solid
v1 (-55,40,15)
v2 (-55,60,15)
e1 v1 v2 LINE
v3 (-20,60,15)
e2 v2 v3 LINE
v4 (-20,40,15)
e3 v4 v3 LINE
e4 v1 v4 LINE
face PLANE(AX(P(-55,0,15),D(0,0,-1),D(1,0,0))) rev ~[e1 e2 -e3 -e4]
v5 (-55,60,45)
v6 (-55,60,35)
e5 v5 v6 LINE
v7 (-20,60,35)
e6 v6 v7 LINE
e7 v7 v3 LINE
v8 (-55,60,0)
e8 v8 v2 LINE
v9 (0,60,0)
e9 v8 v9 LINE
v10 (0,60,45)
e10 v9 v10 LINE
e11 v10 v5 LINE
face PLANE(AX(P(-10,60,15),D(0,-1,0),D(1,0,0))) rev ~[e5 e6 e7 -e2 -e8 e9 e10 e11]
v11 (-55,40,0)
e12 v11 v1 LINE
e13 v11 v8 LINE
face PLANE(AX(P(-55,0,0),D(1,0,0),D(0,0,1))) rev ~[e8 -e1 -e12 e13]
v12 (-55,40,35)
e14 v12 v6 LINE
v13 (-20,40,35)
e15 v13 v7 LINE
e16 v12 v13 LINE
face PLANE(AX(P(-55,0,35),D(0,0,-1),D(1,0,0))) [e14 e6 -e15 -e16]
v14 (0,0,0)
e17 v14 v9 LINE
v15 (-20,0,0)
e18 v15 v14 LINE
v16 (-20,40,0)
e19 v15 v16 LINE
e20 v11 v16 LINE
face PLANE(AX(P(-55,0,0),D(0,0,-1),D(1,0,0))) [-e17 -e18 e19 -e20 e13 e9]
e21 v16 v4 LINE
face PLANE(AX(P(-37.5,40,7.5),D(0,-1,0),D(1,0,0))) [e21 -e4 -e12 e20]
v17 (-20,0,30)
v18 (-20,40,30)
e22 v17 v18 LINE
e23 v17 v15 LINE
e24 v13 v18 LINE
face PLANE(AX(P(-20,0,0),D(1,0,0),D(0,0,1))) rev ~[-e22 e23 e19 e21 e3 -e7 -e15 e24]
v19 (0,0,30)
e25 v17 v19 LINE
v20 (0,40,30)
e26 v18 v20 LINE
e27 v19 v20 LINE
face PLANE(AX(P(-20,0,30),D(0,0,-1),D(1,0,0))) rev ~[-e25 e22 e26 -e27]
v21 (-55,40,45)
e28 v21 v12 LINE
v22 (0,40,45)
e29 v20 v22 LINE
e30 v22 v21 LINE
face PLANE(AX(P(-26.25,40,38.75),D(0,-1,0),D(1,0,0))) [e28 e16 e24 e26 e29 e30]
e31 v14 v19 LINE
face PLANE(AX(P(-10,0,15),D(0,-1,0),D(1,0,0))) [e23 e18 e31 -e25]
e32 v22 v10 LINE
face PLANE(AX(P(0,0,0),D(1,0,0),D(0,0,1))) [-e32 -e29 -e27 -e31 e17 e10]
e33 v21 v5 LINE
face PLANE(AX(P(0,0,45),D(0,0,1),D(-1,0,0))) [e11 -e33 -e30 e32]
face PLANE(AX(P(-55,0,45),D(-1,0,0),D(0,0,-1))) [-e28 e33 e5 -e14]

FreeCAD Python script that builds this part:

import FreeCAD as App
import Part
import Sketcher
from FreeCAD import Vector
Q = App.Units.Quantity


def add_polygon(sketch, points):
    """Adds a closed chain of lines whose ends are joined by coincident constraints."""
    first, n = sketch.GeometryCount, len(points)
    for a, b in zip(points, points[1:] + points[:1]):
        sketch.addGeometry(Part.LineSegment(App.Vector(*a, 0), App.Vector(*b, 0)), False)
    for i in range(n):
        sketch.addConstraint(Sketcher.Constraint("Coincident", first + i, 2, first + (i + 1) % n, 1))

doc = App.newDocument("Part")
params = doc.addObject("Spreadsheet::Sheet", "Params")
for row, (alias, value) in enumerate([
    ("sketch1_width", "55 mm"),
    ("sketch1_width2", "35 mm"),
    ("sketch1_height", "45 mm"),
    ("sketch1_height2", "10 mm"),
    ("sketch1_height3", "20 mm"),
    ("pad1_length", "60 mm"),
    ("sketch2_width", "20 mm"),
    ("sketch2_width2", "55 mm"),
    ("sketch2_height", "15 mm"),
    ("sketch2_height2", "10 mm"),
    ("pocket1_length", "40 mm"),
    ("sketch3_width", "35 mm"),
    ("sketch3_height", "15 mm"),
    ("pocket2_length", "40 mm"),
], start=1):
    params.set(f"A{row}", alias)
    params.set(f"B{row}", "=" + value)
    params.setAlias(f"B{row}", alias)

body = doc.addObject("PartDesign::Body", "Body")

sketch1 = body.newObject("Sketcher::SketchObject", "Sketch")
sketch1.AttachmentSupport = (doc.getObject("XZ_Plane"), [""])
sketch1.MapMode = "FlatFace"
add_polygon(sketch1, [(0, 0), (0, 45), (-55, 45), (-55, 35), (-20, 35), (-20, 15), (-55, 15), (-55, 0)])
sketch1.addConstraint([
    Sketcher.Constraint("Vertical", 0),
    Sketcher.Constraint("Horizontal", 1),
    Sketcher.Constraint("Vertical", 2),
    Sketcher.Constraint("Horizontal", 3),
    Sketcher.Constraint("Vertical", 4),
    Sketcher.Constraint("Horizontal", 5),
    Sketcher.Constraint("Vertical", 6),
    Sketcher.Constraint("Horizontal", 7),
    Sketcher.Constraint("Coincident", 7, 2, -1, 1),
    Sketcher.Constraint("Vertical", 2, 2, 5, 2),
    Sketcher.Constraint("DistanceX", 1, 2, 1, 1, Q("55 mm")),
    Sketcher.Constraint("DistanceX", 3, 1, 3, 2, Q("35 mm")),
    Sketcher.Constraint("DistanceY", 0, 1, 0, 2, Q("45 mm")),
    Sketcher.Constraint("DistanceY", 2, 2, 2, 1, Q("10 mm")),
    Sketcher.Constraint("DistanceY", 4, 2, 4, 1, Q("20 mm")),
])
sketch1.setExpression("Constraints[18]", "Params.sketch1_width")
sketch1.setExpression("Constraints[19]", "Params.sketch1_width2")
sketch1.setExpression("Constraints[20]", "Params.sketch1_height")
sketch1.setExpression("Constraints[21]", "Params.sketch1_height2")
sketch1.setExpression("Constraints[22]", "Params.sketch1_height3")
pad1 = body.newObject("PartDesign::Pad", "Pad")
pad1.Profile = sketch1
pad1.setExpression("Length", "Params.pad1_length")
pad1.Reversed = True

sketch2 = body.newObject("Sketcher::SketchObject", "Sketch001")
sketch2.AttachmentSupport = (doc.getObject("XZ_Plane"), [""])
sketch2.MapMode = "FlatFace"
add_polygon(sketch2, [(-20, 30), (0, 30), (0, 45), (-55, 45), (-55, 35), (-20, 35)])
sketch2.addConstraint([
    Sketcher.Constraint("Horizontal", 0),
    Sketcher.Constraint("Vertical", 1),
    Sketcher.Constraint("Horizontal", 2),
    Sketcher.Constraint("Vertical", 3),
    Sketcher.Constraint("Horizontal", 4),
    Sketcher.Constraint("Vertical", 5),
    Sketcher.Constraint("PointOnObject", 0, 2, -2),
    Sketcher.Constraint("DistanceX", 0, 1, 0, 2, Q("20 mm")),
    Sketcher.Constraint("DistanceX", 2, 2, 2, 1, Q("55 mm")),
    Sketcher.Constraint("DistanceY", 1, 1, 1, 2, Q("15 mm")),
    Sketcher.Constraint("DistanceY", 3, 2, 3, 1, Q("10 mm")),
    Sketcher.Constraint("DistanceY", -1, 1, 0, 2, Q("30 mm")),
])
sketch2.setExpression("Constraints[13]", "Params.sketch2_width")
sketch2.setExpression("Constraints[14]", "Params.sketch2_width2")
sketch2.setExpression("Constraints[15]", "Params.sketch2_height")
sketch2.setExpression("Constraints[16]", "Params.sketch2_height2")
pocket1 = body.newObject("PartDesign::Pocket", "Pocket")
pocket1.Profile = sketch2
pocket1.setExpression("Length", "Params.pocket1_length")

sketch3 = body.newObject("Sketcher::SketchObject", "Sketch002")
sketch3.AttachmentSupport = (doc.getObject("XZ_Plane"), [""])
sketch3.MapMode = "FlatFace"
add_polygon(sketch3, [(-55, 15), (-55, 0), (-20, 0), (-20, 15)])
sketch3.addConstraint([
    Sketcher.Constraint("Vertical", 0),
    Sketcher.Constraint("Horizontal", 1),
    Sketcher.Constraint("Vertical", 2),
    Sketcher.Constraint("Horizontal", 3),
    Sketcher.Constraint("PointOnObject", 0, 2, -1),
    Sketcher.Constraint("DistanceX", 1, 1, 1, 2, Q("35 mm")),
    Sketcher.Constraint("DistanceY", 0, 2, 0, 1, Q("15 mm")),
    Sketcher.Constraint("DistanceX", 0, 2, -1, 1, Q("55 mm")),
])
sketch3.setExpression("Constraints[9]", "Params.sketch3_width")
sketch3.setExpression("Constraints[10]", "Params.sketch3_height")
pocket2 = body.newObject("PartDesign::Pocket", "Pocket001")
pocket2.Profile = sketch3
pocket2.setExpression("Length", "Params.pocket2_length")

doc.recompute()
